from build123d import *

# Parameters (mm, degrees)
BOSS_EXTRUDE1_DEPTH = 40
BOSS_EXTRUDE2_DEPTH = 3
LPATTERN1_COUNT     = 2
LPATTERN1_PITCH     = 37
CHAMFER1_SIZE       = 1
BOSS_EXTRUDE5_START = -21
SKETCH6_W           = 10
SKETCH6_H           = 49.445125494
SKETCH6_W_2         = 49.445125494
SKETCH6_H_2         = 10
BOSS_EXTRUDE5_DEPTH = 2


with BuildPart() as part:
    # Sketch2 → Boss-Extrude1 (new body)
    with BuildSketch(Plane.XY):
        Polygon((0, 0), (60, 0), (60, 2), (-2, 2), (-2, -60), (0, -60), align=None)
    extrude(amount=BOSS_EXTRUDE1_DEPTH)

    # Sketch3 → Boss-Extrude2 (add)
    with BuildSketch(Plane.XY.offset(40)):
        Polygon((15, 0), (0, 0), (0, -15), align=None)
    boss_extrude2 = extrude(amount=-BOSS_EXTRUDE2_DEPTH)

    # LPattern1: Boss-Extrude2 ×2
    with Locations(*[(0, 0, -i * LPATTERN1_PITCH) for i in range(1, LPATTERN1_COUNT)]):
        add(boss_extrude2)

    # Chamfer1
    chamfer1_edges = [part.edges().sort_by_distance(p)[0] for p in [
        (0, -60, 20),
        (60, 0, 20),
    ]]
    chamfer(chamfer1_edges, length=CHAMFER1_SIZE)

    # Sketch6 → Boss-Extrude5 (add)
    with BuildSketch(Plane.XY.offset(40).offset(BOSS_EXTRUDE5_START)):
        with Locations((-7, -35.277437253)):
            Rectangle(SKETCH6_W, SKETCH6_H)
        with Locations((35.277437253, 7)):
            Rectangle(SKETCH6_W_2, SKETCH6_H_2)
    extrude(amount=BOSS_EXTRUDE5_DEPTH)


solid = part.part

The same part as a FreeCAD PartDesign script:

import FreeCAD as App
import Part
import Sketcher

V = App.Vector
Q = App.Units.Quantity


def edges_at(feature, points):
    """Names of the edges that pass closest to the given points."""
    edges = feature.Shape.Edges
    near = lambda p: min(range(len(edges)), key=lambda i: edges[i].distToShape(Part.Vertex(*p))[0])
    return sorted({f"Edge{near(p) + 1}" for p in points})


def add_polygon(sketch, points):
    """Adds a closed chain of lines whose ends are joined by coincident constraints."""
    first, n = sketch.GeometryCount, len(points)
    for a, b in zip(points, points[1:] + points[:1]):
        sketch.addGeometry(Part.LineSegment(App.Vector(*a, 0), App.Vector(*b, 0)), False)
    for i in range(n):
        sketch.addConstraint(Sketcher.Constraint("Coincident", first + i, 2, first + (i + 1) % n, 1))

doc = App.newDocument("Part")
params = doc.addObject("Spreadsheet::Sheet", "Params")
for row, (alias, value) in enumerate([
    ("sketch1_width", "60 mm"),
    ("sketch1_width2", "62 mm"),
    ("pad1_length", "40 mm"),
    ("sketch2_width", "15 mm"),
    ("pad2_length", "3 mm"),
    ("linearpattern_pitch", "37 mm"),
    ("chamfer_size", "1 mm"),
    ("sketch3_width", "10 mm"),
    ("pad3_length", "2 mm"),
], start=1):
    params.set(f"A{row}", alias)
    params.set(f"B{row}", "=" + value)
    params.setAlias(f"B{row}", alias)

body = doc.addObject("PartDesign::Body", "Body")

# Sketch on XY plane
sketch1 = body.newObject("Sketcher::SketchObject", "Sketch")
sketch1.AttachmentSupport = (doc.getObject("XY_Plane"), [""])
sketch1.MapMode = "FlatFace"
add_polygon(sketch1, [(0, 0), (60, 0), (60, 2), (-2, 2), (-2, -60), (0, -60)])  # lines 0-5
sketch1.addConstraint([
    Sketcher.Constraint("Horizontal", 0),
    Sketcher.Constraint("Vertical", 1),
    Sketcher.Constraint("Horizontal", 2),
    Sketcher.Constraint("Vertical", 3),
    Sketcher.Constraint("Horizontal", 4),
    Sketcher.Constraint("Vertical", 5),
    Sketcher.Constraint("Coincident", 5, 2, -1, 1),
    Sketcher.Constraint("Equal", 4, 1),
    Sketcher.Constraint("Equal", 2, 3),
    Sketcher.Constraint("DistanceX", 0, 1, 0, 2, Q("60 mm")),
    Sketcher.Constraint("DistanceX", 2, 2, 2, 1, Q("62 mm")),
])
sketch1.setExpression("Constraints[15]", "Params.sketch1_width")
sketch1.setExpression("Constraints[16]", "Params.sketch1_width2")
pad1 = body.newObject("PartDesign::Pad", "Pad")
pad1.Profile = sketch1
pad1.setExpression("Length", "Params.pad1_length")

# Sketch on XY plane
sketch2 = body.newObject("Sketcher::SketchObject", "Sketch001")
sketch2.AttachmentSupport = (doc.getObject("XY_Plane"), [""])
sketch2.MapMode = "FlatFace"
sketch2.AttachmentOffset = App.Placement(V(0, 0, 40), App.Rotation())
add_polygon(sketch2, [(15, 0), (0, 0), (0, -15)])  # lines 0-2
sketch2.addConstraint([
    Sketcher.Constraint("Horizontal", 0),
    Sketcher.Constraint("Vertical", 1),
    Sketcher.Constraint("Coincident", 0, 2, -1, 1),
    Sketcher.Constraint("Equal", 0, 1),
    Sketcher.Constraint("DistanceX", 0, 2, 0, 1, Q("15 mm")),
])
sketch2.setExpression("Constraints[7]", "Params.sketch2_width")
pad2 = body.newObject("PartDesign::Pad", "Pad001")
pad2.Profile = sketch2
pad2.setExpression("Length", "Params.pad2_length")
pad2.Reversed = True
doc.recompute()

linearpattern = body.newObject("PartDesign::LinearPattern", "LinearPattern")
linearpattern.Originals = [pad2]
linearpattern.Direction = (doc.getObject("Z_Axis"), [""])
linearpattern.Mode = "offset"
linearpattern.setExpression("Offset", "Params.linearpattern_pitch")
linearpattern.Occurrences = 2
linearpattern.Reversed = True
body.Tip = linearpattern
doc.recompute()

chamfer = body.newObject("PartDesign::Chamfer", "Chamfer")
chamfer.Base = (linearpattern, edges_at(linearpattern, [(0, -60, 20), (60, 0, 20)]))
chamfer.setExpression("Size", "Params.chamfer_size")

# Sketch on XY plane
sketch3 = body.newObject("Sketcher::SketchObject", "Sketch002")
sketch3.AttachmentSupport = (doc.getObject("XY_Plane"), [""])
sketch3.MapMode = "FlatFace"
sketch3.AttachmentOffset = App.Placement(V(0, 0, 19), App.Rotation())
add_polygon(sketch3, [(-12, -11), (-12, -60), (-2, -60), (-2, -11)])  # lines 0-3
add_polygon(sketch3, [(11, 12), (11, 2), (60, 2), (60, 12)])  # lines 4-7
sketch3.addConstraint([
    Sketcher.Constraint("Vertical", 0),
    Sketcher.Constraint("Horizontal", 1),
    Sketcher.Constraint("Vertical", 2),
    Sketcher.Constraint("Horizontal", 3),
    Sketcher.Constraint("Vertical", 4),
    Sketcher.Constraint("Horizontal", 5),
    Sketcher.Constraint("Vertical", 6),
    Sketcher.Constraint("Horizontal", 7),
    Sketcher.Constraint("Equal", 7, 0),
    Sketcher.Constraint("Equal", 3, 4),
    Sketcher.Constraint("DistanceX", 1, 1, 1, 2, Q("10 mm")),
    Sketcher.Constraint("DistanceX", 0, 2, -1, 1, Q("12 mm")),
    Sketcher.Constraint("DistanceY", 0, 2, -1, 1, Q("60 mm")),
    Sketcher.Constraint("DistanceY", -1, 1, 4, 2, Q("2 mm")),
    Sketcher.Constraint("DistanceX", -1, 1, 5, 2, Q("60 mm")),
    Sketcher.Constraint("DistanceX", 5, 1, 5, 2, Q("49.445125 mm")),
])
sketch3.setExpression("Constraints[18]", "Params.sketch3_width")
pad3 = body.newObject("PartDesign::Pad", "Pad002")
pad3.Profile = sketch3
pad3.setExpression("Length", "Params.pad3_length")

doc.recompute()
